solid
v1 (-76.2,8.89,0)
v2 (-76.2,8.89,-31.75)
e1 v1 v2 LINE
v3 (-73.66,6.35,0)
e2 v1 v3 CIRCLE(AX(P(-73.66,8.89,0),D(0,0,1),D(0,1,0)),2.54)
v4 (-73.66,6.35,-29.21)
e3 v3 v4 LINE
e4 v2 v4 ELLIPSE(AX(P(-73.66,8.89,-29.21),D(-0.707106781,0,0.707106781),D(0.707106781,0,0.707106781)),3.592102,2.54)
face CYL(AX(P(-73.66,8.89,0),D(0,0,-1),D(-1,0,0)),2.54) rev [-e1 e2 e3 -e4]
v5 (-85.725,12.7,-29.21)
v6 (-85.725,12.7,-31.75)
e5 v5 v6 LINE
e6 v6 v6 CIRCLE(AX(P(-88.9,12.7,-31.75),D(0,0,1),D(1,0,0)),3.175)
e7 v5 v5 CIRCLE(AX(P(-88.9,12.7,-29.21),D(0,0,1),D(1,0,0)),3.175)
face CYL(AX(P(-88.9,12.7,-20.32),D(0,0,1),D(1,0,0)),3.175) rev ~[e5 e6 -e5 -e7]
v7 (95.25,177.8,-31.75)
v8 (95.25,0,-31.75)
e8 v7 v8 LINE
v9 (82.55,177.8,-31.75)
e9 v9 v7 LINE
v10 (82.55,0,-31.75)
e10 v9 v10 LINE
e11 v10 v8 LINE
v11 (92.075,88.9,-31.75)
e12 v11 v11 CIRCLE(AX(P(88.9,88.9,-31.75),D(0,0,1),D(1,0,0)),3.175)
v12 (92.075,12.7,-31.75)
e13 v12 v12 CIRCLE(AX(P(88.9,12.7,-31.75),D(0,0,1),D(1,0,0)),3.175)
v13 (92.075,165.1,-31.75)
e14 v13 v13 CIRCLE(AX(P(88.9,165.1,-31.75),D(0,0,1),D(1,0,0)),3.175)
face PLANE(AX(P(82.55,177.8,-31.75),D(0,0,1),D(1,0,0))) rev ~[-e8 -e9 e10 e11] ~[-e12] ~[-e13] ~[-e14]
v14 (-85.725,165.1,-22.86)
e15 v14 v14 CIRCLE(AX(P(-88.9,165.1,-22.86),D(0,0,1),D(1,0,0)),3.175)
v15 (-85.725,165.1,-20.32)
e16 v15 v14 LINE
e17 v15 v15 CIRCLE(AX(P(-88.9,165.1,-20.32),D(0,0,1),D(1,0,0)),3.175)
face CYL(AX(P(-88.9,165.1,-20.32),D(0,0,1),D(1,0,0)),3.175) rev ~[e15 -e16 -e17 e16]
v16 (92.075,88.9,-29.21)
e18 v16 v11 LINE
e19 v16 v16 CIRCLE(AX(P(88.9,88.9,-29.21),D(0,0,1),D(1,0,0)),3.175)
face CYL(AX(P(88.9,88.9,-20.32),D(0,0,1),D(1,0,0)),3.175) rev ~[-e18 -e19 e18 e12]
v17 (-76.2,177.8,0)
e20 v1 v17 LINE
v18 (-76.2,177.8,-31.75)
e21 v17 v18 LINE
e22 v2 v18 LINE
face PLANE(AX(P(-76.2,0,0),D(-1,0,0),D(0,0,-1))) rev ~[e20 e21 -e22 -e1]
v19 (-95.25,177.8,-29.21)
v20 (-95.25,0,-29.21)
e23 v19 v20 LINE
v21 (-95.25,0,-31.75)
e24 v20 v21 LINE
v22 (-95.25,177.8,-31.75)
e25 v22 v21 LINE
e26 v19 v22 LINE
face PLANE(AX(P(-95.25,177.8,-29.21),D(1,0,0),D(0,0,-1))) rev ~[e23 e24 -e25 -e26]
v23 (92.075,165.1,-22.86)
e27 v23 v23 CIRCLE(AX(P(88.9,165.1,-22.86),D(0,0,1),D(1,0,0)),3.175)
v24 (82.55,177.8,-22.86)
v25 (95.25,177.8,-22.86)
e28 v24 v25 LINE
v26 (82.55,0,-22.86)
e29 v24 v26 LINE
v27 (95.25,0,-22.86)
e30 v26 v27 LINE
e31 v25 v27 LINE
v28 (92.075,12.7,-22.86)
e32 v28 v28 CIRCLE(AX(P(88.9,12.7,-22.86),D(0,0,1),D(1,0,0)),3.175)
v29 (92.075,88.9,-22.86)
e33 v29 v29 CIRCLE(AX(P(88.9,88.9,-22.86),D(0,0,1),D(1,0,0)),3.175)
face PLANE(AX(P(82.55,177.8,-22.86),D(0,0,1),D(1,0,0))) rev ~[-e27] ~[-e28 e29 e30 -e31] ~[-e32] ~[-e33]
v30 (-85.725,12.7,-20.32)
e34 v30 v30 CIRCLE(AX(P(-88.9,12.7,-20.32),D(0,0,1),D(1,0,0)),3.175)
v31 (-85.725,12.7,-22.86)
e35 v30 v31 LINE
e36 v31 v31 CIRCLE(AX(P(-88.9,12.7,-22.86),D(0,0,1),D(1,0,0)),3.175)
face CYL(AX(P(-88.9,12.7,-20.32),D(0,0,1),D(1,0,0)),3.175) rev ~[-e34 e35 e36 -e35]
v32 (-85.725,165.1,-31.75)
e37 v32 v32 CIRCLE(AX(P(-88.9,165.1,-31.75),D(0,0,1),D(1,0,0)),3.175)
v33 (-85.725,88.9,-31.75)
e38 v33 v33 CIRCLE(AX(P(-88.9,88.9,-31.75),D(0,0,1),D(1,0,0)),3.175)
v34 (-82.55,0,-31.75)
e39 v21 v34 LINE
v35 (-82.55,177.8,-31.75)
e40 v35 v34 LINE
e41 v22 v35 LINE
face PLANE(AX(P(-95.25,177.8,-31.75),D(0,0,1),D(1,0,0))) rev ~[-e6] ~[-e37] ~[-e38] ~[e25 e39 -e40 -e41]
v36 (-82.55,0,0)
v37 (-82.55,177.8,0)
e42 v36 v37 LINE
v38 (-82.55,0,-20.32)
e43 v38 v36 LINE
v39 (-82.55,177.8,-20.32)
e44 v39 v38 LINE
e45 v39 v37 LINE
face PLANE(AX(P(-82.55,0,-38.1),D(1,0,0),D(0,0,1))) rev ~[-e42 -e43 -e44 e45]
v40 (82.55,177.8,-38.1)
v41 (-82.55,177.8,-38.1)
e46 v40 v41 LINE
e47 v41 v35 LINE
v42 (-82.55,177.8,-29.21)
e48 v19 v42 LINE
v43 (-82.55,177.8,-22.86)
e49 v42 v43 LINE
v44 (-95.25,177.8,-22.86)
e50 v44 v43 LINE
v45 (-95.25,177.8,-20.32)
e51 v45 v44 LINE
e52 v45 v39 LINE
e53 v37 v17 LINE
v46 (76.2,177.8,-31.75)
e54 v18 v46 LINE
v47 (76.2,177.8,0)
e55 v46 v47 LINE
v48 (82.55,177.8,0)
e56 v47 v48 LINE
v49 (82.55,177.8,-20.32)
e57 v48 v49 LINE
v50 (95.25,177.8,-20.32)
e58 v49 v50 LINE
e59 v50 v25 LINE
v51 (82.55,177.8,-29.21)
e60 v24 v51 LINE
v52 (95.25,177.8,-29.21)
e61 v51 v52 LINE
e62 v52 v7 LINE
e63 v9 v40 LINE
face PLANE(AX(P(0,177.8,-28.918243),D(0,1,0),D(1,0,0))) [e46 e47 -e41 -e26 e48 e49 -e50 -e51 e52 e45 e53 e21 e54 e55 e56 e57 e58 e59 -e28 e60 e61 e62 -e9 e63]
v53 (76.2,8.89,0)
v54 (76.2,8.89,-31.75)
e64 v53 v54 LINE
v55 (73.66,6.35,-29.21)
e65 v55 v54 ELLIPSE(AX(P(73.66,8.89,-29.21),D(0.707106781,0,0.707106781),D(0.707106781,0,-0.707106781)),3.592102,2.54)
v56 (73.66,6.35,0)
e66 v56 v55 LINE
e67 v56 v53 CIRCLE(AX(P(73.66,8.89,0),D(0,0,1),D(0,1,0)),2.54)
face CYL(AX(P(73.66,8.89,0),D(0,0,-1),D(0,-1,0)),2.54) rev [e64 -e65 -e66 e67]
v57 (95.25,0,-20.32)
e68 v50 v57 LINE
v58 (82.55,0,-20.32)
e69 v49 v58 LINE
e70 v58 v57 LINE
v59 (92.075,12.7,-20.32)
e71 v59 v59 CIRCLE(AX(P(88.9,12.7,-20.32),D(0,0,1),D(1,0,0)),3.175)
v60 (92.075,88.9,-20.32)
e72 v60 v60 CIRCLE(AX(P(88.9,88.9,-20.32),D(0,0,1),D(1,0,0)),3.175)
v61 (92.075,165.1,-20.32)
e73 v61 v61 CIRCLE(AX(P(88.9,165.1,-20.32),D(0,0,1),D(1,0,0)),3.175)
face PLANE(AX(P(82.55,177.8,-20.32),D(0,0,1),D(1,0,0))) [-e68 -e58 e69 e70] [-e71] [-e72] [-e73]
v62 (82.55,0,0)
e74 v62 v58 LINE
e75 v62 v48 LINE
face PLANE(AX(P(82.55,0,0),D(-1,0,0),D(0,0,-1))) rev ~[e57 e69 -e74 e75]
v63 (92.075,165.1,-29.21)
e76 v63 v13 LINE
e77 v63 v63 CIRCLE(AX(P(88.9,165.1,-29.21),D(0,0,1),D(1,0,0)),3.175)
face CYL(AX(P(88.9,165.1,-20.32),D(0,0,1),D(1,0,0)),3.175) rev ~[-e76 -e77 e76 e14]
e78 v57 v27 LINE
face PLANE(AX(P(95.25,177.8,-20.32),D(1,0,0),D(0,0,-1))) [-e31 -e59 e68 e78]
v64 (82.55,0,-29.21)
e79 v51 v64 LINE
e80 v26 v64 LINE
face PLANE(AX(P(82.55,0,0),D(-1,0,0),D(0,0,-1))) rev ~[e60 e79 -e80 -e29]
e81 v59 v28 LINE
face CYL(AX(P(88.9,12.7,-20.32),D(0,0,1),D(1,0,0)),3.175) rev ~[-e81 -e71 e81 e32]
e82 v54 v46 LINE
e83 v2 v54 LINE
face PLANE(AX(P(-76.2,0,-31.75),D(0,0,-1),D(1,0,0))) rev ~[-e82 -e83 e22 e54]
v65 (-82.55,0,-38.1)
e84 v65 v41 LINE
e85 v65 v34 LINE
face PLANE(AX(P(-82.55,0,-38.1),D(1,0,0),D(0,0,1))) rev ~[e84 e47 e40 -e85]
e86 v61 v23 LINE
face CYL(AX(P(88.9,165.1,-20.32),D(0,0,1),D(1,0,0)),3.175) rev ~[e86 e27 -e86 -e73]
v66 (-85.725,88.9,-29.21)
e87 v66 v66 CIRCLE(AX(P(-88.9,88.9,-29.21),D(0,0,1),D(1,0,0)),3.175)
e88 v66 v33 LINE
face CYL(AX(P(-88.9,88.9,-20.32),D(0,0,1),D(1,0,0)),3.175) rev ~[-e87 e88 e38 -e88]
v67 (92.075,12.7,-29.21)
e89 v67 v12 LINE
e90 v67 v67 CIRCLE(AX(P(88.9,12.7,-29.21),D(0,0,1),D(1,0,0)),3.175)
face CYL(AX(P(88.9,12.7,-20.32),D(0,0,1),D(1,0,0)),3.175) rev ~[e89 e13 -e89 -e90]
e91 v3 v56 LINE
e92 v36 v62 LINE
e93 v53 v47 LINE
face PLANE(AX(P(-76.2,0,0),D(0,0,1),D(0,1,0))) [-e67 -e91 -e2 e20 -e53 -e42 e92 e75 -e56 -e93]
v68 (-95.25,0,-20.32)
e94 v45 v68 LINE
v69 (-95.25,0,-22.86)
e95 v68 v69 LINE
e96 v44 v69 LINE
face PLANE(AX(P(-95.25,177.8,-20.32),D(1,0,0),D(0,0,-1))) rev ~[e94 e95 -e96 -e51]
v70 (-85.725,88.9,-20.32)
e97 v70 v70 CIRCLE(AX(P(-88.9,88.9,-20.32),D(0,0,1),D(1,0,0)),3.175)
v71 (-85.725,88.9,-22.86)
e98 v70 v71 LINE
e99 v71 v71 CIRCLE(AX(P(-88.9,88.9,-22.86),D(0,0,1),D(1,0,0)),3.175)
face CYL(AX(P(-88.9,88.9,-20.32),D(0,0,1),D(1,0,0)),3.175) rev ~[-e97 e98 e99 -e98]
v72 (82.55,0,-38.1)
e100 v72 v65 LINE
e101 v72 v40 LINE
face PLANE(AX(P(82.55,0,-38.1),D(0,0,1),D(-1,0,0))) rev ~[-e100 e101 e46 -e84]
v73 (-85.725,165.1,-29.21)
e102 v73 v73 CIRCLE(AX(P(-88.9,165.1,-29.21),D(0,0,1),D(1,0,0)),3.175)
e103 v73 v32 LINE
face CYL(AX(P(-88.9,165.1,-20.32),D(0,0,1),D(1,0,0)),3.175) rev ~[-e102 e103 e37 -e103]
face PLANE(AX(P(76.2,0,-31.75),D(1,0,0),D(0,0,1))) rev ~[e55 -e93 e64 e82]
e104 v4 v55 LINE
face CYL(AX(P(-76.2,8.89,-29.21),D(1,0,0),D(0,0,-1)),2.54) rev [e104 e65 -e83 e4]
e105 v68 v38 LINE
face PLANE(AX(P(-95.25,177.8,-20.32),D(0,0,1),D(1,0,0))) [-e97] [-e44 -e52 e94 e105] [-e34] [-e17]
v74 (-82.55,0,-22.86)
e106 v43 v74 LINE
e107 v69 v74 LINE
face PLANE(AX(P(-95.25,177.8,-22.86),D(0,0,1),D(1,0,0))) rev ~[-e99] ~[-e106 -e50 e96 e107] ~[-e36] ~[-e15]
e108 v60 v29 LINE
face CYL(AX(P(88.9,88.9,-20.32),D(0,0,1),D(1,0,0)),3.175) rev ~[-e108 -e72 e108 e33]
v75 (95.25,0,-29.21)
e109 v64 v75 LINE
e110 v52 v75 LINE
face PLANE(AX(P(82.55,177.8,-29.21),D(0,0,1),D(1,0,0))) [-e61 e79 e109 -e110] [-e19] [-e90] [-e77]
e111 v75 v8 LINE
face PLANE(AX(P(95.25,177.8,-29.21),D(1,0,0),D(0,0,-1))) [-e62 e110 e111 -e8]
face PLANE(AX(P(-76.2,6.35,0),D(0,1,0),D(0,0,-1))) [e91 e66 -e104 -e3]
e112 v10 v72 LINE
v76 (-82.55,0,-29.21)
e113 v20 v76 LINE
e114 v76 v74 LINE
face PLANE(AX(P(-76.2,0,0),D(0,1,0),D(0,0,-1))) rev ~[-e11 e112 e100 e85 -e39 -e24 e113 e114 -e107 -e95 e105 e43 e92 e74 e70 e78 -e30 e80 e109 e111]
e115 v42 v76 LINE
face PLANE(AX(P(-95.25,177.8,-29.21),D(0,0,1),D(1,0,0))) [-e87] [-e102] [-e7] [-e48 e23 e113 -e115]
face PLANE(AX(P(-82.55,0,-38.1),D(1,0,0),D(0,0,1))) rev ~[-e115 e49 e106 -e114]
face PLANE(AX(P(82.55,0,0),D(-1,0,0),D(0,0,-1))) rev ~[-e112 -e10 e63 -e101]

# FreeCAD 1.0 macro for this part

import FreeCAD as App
import Part
import Sketcher

V = App.Vector
Q = App.Units.Quantity


def edges_at(feature, points):
    """Names of the edges that pass closest to the given points."""
    edges = feature.Shape.Edges
    near = lambda p: min(range(len(edges)), key=lambda i: edges[i].distToShape(Part.Vertex(*p))[0])
    return sorted({f"Edge{near(p) + 1}" for p in points})

doc = App.newDocument("Part")
params = doc.addObject("Spreadsheet::Sheet", "Params")
for row, (alias, value) in enumerate([
    ("sketch1_width", "6 in"),
    ("sketch1_width2", "6.5 in"),
    ("sketch1_height", "1.5 in"),
    ("sketch1_height2", "1.25 in"),
    ("pad1_length", "7 in"),
    ("sketch2_width", "0.5 in"),
    ("sketch2_height", "0.1 in"),
    ("pad2_length", "7 in"),
    ("sketch3_diameter", "0.25 in"),
    ("sketch4_width", "0.25 in"),
    ("sketch4_height", "1.25 in"),
    ("pad3_length", "6 in"),
    ("fillet_radius", "0.1 in"),
], start=1):
    params.set(f"A{row}", alias)
    params.set(f"B{row}", "=" + value)
    params.setAlias(f"B{row}", alias)

body = doc.addObject("PartDesign::Body", "Body")

# Sketch on XZ plane
sketch1 = doc.addObject("Sketcher::SketchObject", "Sketch")
body.addObject(sketch1)
sketch1.AttachmentSupport = (doc.XZ_Plane, [""])
sketch1.MapMode = "FlatFace"
sketch1.addGeometry([
    Part.LineSegment(V(76, 0, 0), V(83, 0, 0)),  # 0
    Part.LineSegment(V(83, 0, 0), V(83, -38, 0)),  # 1
    Part.LineSegment(V(83, -38, 0), V(-83, -38, 0)),  # 2
    Part.LineSegment(V(-83, -38, 0), V(-83, 0, 0)),  # 3
    Part.LineSegment(V(-83, 0, 0), V(-76, 0, 0)),  # 4
    Part.LineSegment(V(-76, 0, 0), V(-76, -32, 0)),  # 5
    Part.LineSegment(V(-76, -32, 0), V(76, -32, 0)),  # 6
    Part.LineSegment(V(76, -32, 0), V(76, 0, 0)),  # 7
], False)
sketch1.addConstraint([
    Sketcher.Constraint("Coincident", 0, 2, 1, 1),
    Sketcher.Constraint("Coincident", 1, 2, 2, 1),
    Sketcher.Constraint("Coincident", 2, 2, 3, 1),
    Sketcher.Constraint("Coincident", 3, 2, 4, 1),
    Sketcher.Constraint("Coincident", 4, 2, 5, 1),
    Sketcher.Constraint("Coincident", 5, 2, 6, 1),
    Sketcher.Constraint("Coincident", 6, 2, 7, 1),
    Sketcher.Constraint("Coincident", 7, 2, 0, 1),
    Sketcher.Constraint("Horizontal", 0),
    Sketcher.Constraint("Vertical", 1),
    Sketcher.Constraint("Horizontal", 2),
    Sketcher.Constraint("Vertical", 3),
    Sketcher.Constraint("Horizontal", 4),
    Sketcher.Constraint("Vertical", 5),
    Sketcher.Constraint("Horizontal", 6),
    Sketcher.Constraint("Vertical", 7),
    Sketcher.Constraint("Symmetric", 0, 2, 3, 2, -1, 1),
    Sketcher.Constraint("Symmetric", 4, 2, 7, 2, -2),
    Sketcher.Constraint("DistanceX", 6, 1, 6, 2, Q("6 in")),
    Sketcher.Constraint("DistanceX", 2, 2, 2, 1, Q("6.5 in")),
    Sketcher.Constraint("DistanceY", 1, 2, 1, 1, Q("1.5 in")),
    Sketcher.Constraint("DistanceY", 5, 2, 5, 1, Q("1.25 in")),
])
sketch1.setExpression("Constraints[18]", "Params.sketch1_width")
sketch1.setExpression("Constraints[19]", "Params.sketch1_width2")
sketch1.setExpression("Constraints[20]", "Params.sketch1_height")
sketch1.setExpression("Constraints[21]", "Params.sketch1_height2")
pad1 = doc.addObject("PartDesign::Pad", "Pad")
body.addObject(pad1)
pad1.Profile = sketch1
pad1.setExpression("Length", "Params.pad1_length")
pad1.Reversed = True

# Sketch on XZ plane
sketch2 = doc.addObject("Sketcher::SketchObject", "Sketch001")
body.addObject(sketch2)
sketch2.AttachmentSupport = (doc.XZ_Plane, [""])
sketch2.MapMode = "FlatFace"
sketch2.AttachmentOffset = App.Placement(V(0, 0, -7 * 25.4), App.Rotation())
sketch2.addGeometry([
    Part.LineSegment(V(82.5, -31.8, 0), V(82.5, -29.2, 0)),  # 0
    Part.LineSegment(V(82.5, -29.2, 0), V(95.2, -29.2, 0)),  # 1
    Part.LineSegment(V(95.2, -29.2, 0), V(95.2, -31.8, 0)),  # 2
    Part.LineSegment(V(95.2, -31.8, 0), V(82.5, -31.8, 0)),  # 3
    Part.LineSegment(V(82.5, -22.9, 0), V(82.5, -20.3, 0)),  # 4
    Part.LineSegment(V(82.5, -20.3, 0), V(95.2, -20.3, 0)),  # 5
    Part.LineSegment(V(95.2, -20.3, 0), V(95.2, -22.9, 0)),  # 6
    Part.LineSegment(V(95.2, -22.9, 0), V(82.5, -22.9, 0)),  # 7
    Part.LineSegment(V(-95.2, -22.9, 0), V(-95.2, -20.3, 0)),  # 8
    Part.LineSegment(V(-95.2, -20.3, 0), V(-82.5, -20.3, 0)),  # 9
    Part.LineSegment(V(-82.5, -20.3, 0), V(-82.5, -22.9, 0)),  # 10
    Part.LineSegment(V(-82.5, -22.9, 0), V(-95.2, -22.9, 0)),  # 11
    Part.LineSegment(V(-95.2, -31.8, 0), V(-95.2, -29.2, 0)),  # 12
    Part.LineSegment(V(-95.2, -29.2, 0), V(-82.5, -29.2, 0)),  # 13
    Part.LineSegment(V(-82.5, -29.2, 0), V(-82.5, -31.8, 0)),  # 14
    Part.LineSegment(V(-82.5, -31.8, 0), V(-95.2, -31.8, 0)),  # 15
], False)
sketch2.addConstraint([
    Sketcher.Constraint("Coincident", 0, 2, 1, 1),
    Sketcher.Constraint("Coincident", 1, 2, 2, 1),
    Sketcher.Constraint("Coincident", 2, 2, 3, 1),
    Sketcher.Constraint("Coincident", 3, 2, 0, 1),
    Sketcher.Constraint("Coincident", 4, 2, 5, 1),
    Sketcher.Constraint("Coincident", 5, 2, 6, 1),
    Sketcher.Constraint("Coincident", 6, 2, 7, 1),
    Sketcher.Constraint("Coincident", 7, 2, 4, 1),
    Sketcher.Constraint("Coincident", 8, 2, 9, 1),
    Sketcher.Constraint("Coincident", 9, 2, 10, 1),
    Sketcher.Constraint("Coincident", 10, 2, 11, 1),
    Sketcher.Constraint("Coincident", 11, 2, 8, 1),
    Sketcher.Constraint("Coincident", 12, 2, 13, 1),
    Sketcher.Constraint("Coincident", 13, 2, 14, 1),
    Sketcher.Constraint("Coincident", 14, 2, 15, 1),
    Sketcher.Constraint("Coincident", 15, 2, 12, 1),
    Sketcher.Constraint("Vertical", 0),
    Sketcher.Constraint("Horizontal", 1),
    Sketcher.Constraint("Vertical", 2),
    Sketcher.Constraint("Horizontal", 3),
    Sketcher.Constraint("Vertical", 4),
    Sketcher.Constraint("Horizontal", 5),
    Sketcher.Constraint("Vertical", 6),
    Sketcher.Constraint("Horizontal", 7),
    Sketcher.Constraint("Vertical", 8),
    Sketcher.Constraint("Horizontal", 9),
    Sketcher.Constraint("Vertical", 10),
    Sketcher.Constraint("Horizontal", 11),
    Sketcher.Constraint("Vertical", 12),
    Sketcher.Constraint("Horizontal", 13),
    Sketcher.Constraint("Vertical", 14),
    Sketcher.Constraint("Horizontal", 15),
    Sketcher.Constraint("Symmetric", 5, 2, 8, 2, -2),
    Sketcher.Constraint("Symmetric", 7, 2, 10, 2, -2),
    Sketcher.Constraint("Symmetric", 1, 2, 12, 2, -2),
    Sketcher.Constraint("Symmetric", 3, 2, 14, 2, -2),
    Sketcher.Constraint("Vertical", 3, 2, 4, 2),
    Sketcher.Constraint("Vertical", 2, 2, 5, 2),
    Sketcher.Constraint("Equal", 2, 4),
    Sketcher.Constraint("DistanceX", 1, 1, 1, 2, Q("0.5 in")),
    Sketcher.Constraint("DistanceY", 0, 1, 0, 2, Q("0.1 in")),
    Sketcher.Constraint("DistanceX", 8, 2, 4, 2, Q("7 in")),
    Sketcher.Constraint("DistanceY", 4, 2, -1, 1, Q("0.8 in")),
    Sketcher.Constraint("DistanceY", 0, 2, -1, 1, Q("1.15 in")),
])
sketch2.setExpression("Constraints[39]", "Params.sketch2_width")
sketch2.setExpression("Constraints[40]", "Params.sketch2_height")
pad2 = doc.addObject("PartDesign::Pad", "Pad001")
body.addObject(pad2)
pad2.Profile = sketch2
pad2.setExpression("Length", "Params.pad2_length")

# Sketch on XY plane
sketch3 = doc.addObject("Sketcher::SketchObject", "Sketch002")
body.addObject(sketch3)
sketch3.AttachmentSupport = (doc.XY_Plane, [""])
sketch3.MapMode = "FlatFace"
sketch3.AttachmentOffset = App.Placement(V(0, 0, -0.8 * 25.4), App.Rotation())
sketch3.addGeometry([
    Part.Circle(V(88.9, 12.7, 0), V(0, 0, 1), 3.2),  # 0
    Part.Circle(V(88.9, 88.9, 0), V(0, 0, 1), 3.2),  # 1
    Part.Circle(V(88.9, 165.1, 0), V(0, 0, 1), 3.2),  # 2
    Part.Circle(V(-88.9, 12.7, 0), V(0, 0, 1), 3.2),  # 3
    Part.Circle(V(-88.9, 165.1, 0), V(0, 0, 1), 3.2),  # 4
    Part.Circle(V(-88.9, 88.9, 0), V(0, 0, 1), 3.2),  # 5
], False)
sketch3.addConstraint([
    Sketcher.Constraint("Equal", 0, 1),
    Sketcher.Constraint("Equal", 1, 2),
    Sketcher.Constraint("Equal", 2, 3),
    Sketcher.Constraint("Equal", 3, 4),
    Sketcher.Constraint("Equal", 4, 5),
    Sketcher.Constraint("Symmetric", 0, 3, 3, 3, -2),
    Sketcher.Constraint("Symmetric", 2, 3, 4, 3, -2),
    Sketcher.Constraint("Symmetric", 1, 3, 5, 3, -2),
    Sketcher.Constraint("Vertical", 0, 3, 1, 3),
    Sketcher.Constraint("Vertical", 1, 3, 2, 3),
    Sketcher.Constraint("Diameter", 0, Q("0.25 in")),
    Sketcher.Constraint("DistanceY", 0, 3, 1, 3, Q("3 in")),
    Sketcher.Constraint("DistanceY", 1, 3, 2, 3, Q("3 in")),
    Sketcher.Constraint("DistanceX", 3, 3, 0, 3, Q("7 in")),
    Sketcher.Constraint("DistanceY", -1, 1, 0, 3, Q("0.5 in")),
])
sketch3.setExpression("Constraints[10]", "Params.sketch3_diameter")
pocket1 = doc.addObject("PartDesign::Pocket", "Pocket")
body.addObject(pocket1)
pocket1.Profile = sketch3
pocket1.Type = "ThroughAll"

# Sketch on YZ plane
sketch4 = doc.addObject("Sketcher::SketchObject", "Sketch003")
body.addObject(sketch4)
sketch4.AttachmentSupport = (doc.YZ_Plane, [""])
sketch4.MapMode = "FlatFace"
sketch4.AttachmentOffset = App.Placement(V(0, 0, -3 * 25.4), App.Rotation())
sketch4.addGeometry([
    Part.LineSegment(V(6, 0, 0), V(0, 0, 0)),
    Part.LineSegment(V(0, 0, 0), V(0, -32, 0)),
    Part.LineSegment(V(0, -32, 0), V(6, -32, 0)),
    Part.LineSegment(V(6, -32, 0), V(6, 0, 0)),
], False)
sketch4.addConstraint([
    Sketcher.Constraint("Coincident", 0, 2, 1, 1),
    Sketcher.Constraint("Coincident", 1, 2, 2, 1),
    Sketcher.Constraint("Coincident", 2, 2, 3, 1),
    Sketcher.Constraint("Coincident", 3, 2, 0, 1),
    Sketcher.Constraint("Horizontal", 0),
    Sketcher.Constraint("Vertical", 1),
    Sketcher.Constraint("Horizontal", 2),
    Sketcher.Constraint("Vertical", 3),
    Sketcher.Constraint("Coincident", 0, 2, -1, 1),
    Sketcher.Constraint("DistanceX", 0, 2, 0, 1, Q("0.25 in")),
    Sketcher.Constraint("DistanceY", 1, 2, 1, 1, Q("1.25 in")),
])
sketch4.setExpression("Constraints[9]", "Params.sketch4_width")
sketch4.setExpression("Constraints[10]", "Params.sketch4_height")
pad3 = doc.addObject("PartDesign::Pad", "Pad002")
body.addObject(pad3)
pad3.Profile = sketch4
pad3.setExpression("Length", "Params.pad3_length")
doc.recompute()

fillet = doc.addObject("PartDesign::Fillet", "Fillet")
body.addObject(fillet)
fillet.Base = (pad3, edges_at(pad3, [(76.2, 6.35, -15.875), (0, 6.35, -31.75), (-76.2, 6.35, -15.875)]))
fillet.setExpression("Radius", "Params.fillet_radius")

doc.recompute()
